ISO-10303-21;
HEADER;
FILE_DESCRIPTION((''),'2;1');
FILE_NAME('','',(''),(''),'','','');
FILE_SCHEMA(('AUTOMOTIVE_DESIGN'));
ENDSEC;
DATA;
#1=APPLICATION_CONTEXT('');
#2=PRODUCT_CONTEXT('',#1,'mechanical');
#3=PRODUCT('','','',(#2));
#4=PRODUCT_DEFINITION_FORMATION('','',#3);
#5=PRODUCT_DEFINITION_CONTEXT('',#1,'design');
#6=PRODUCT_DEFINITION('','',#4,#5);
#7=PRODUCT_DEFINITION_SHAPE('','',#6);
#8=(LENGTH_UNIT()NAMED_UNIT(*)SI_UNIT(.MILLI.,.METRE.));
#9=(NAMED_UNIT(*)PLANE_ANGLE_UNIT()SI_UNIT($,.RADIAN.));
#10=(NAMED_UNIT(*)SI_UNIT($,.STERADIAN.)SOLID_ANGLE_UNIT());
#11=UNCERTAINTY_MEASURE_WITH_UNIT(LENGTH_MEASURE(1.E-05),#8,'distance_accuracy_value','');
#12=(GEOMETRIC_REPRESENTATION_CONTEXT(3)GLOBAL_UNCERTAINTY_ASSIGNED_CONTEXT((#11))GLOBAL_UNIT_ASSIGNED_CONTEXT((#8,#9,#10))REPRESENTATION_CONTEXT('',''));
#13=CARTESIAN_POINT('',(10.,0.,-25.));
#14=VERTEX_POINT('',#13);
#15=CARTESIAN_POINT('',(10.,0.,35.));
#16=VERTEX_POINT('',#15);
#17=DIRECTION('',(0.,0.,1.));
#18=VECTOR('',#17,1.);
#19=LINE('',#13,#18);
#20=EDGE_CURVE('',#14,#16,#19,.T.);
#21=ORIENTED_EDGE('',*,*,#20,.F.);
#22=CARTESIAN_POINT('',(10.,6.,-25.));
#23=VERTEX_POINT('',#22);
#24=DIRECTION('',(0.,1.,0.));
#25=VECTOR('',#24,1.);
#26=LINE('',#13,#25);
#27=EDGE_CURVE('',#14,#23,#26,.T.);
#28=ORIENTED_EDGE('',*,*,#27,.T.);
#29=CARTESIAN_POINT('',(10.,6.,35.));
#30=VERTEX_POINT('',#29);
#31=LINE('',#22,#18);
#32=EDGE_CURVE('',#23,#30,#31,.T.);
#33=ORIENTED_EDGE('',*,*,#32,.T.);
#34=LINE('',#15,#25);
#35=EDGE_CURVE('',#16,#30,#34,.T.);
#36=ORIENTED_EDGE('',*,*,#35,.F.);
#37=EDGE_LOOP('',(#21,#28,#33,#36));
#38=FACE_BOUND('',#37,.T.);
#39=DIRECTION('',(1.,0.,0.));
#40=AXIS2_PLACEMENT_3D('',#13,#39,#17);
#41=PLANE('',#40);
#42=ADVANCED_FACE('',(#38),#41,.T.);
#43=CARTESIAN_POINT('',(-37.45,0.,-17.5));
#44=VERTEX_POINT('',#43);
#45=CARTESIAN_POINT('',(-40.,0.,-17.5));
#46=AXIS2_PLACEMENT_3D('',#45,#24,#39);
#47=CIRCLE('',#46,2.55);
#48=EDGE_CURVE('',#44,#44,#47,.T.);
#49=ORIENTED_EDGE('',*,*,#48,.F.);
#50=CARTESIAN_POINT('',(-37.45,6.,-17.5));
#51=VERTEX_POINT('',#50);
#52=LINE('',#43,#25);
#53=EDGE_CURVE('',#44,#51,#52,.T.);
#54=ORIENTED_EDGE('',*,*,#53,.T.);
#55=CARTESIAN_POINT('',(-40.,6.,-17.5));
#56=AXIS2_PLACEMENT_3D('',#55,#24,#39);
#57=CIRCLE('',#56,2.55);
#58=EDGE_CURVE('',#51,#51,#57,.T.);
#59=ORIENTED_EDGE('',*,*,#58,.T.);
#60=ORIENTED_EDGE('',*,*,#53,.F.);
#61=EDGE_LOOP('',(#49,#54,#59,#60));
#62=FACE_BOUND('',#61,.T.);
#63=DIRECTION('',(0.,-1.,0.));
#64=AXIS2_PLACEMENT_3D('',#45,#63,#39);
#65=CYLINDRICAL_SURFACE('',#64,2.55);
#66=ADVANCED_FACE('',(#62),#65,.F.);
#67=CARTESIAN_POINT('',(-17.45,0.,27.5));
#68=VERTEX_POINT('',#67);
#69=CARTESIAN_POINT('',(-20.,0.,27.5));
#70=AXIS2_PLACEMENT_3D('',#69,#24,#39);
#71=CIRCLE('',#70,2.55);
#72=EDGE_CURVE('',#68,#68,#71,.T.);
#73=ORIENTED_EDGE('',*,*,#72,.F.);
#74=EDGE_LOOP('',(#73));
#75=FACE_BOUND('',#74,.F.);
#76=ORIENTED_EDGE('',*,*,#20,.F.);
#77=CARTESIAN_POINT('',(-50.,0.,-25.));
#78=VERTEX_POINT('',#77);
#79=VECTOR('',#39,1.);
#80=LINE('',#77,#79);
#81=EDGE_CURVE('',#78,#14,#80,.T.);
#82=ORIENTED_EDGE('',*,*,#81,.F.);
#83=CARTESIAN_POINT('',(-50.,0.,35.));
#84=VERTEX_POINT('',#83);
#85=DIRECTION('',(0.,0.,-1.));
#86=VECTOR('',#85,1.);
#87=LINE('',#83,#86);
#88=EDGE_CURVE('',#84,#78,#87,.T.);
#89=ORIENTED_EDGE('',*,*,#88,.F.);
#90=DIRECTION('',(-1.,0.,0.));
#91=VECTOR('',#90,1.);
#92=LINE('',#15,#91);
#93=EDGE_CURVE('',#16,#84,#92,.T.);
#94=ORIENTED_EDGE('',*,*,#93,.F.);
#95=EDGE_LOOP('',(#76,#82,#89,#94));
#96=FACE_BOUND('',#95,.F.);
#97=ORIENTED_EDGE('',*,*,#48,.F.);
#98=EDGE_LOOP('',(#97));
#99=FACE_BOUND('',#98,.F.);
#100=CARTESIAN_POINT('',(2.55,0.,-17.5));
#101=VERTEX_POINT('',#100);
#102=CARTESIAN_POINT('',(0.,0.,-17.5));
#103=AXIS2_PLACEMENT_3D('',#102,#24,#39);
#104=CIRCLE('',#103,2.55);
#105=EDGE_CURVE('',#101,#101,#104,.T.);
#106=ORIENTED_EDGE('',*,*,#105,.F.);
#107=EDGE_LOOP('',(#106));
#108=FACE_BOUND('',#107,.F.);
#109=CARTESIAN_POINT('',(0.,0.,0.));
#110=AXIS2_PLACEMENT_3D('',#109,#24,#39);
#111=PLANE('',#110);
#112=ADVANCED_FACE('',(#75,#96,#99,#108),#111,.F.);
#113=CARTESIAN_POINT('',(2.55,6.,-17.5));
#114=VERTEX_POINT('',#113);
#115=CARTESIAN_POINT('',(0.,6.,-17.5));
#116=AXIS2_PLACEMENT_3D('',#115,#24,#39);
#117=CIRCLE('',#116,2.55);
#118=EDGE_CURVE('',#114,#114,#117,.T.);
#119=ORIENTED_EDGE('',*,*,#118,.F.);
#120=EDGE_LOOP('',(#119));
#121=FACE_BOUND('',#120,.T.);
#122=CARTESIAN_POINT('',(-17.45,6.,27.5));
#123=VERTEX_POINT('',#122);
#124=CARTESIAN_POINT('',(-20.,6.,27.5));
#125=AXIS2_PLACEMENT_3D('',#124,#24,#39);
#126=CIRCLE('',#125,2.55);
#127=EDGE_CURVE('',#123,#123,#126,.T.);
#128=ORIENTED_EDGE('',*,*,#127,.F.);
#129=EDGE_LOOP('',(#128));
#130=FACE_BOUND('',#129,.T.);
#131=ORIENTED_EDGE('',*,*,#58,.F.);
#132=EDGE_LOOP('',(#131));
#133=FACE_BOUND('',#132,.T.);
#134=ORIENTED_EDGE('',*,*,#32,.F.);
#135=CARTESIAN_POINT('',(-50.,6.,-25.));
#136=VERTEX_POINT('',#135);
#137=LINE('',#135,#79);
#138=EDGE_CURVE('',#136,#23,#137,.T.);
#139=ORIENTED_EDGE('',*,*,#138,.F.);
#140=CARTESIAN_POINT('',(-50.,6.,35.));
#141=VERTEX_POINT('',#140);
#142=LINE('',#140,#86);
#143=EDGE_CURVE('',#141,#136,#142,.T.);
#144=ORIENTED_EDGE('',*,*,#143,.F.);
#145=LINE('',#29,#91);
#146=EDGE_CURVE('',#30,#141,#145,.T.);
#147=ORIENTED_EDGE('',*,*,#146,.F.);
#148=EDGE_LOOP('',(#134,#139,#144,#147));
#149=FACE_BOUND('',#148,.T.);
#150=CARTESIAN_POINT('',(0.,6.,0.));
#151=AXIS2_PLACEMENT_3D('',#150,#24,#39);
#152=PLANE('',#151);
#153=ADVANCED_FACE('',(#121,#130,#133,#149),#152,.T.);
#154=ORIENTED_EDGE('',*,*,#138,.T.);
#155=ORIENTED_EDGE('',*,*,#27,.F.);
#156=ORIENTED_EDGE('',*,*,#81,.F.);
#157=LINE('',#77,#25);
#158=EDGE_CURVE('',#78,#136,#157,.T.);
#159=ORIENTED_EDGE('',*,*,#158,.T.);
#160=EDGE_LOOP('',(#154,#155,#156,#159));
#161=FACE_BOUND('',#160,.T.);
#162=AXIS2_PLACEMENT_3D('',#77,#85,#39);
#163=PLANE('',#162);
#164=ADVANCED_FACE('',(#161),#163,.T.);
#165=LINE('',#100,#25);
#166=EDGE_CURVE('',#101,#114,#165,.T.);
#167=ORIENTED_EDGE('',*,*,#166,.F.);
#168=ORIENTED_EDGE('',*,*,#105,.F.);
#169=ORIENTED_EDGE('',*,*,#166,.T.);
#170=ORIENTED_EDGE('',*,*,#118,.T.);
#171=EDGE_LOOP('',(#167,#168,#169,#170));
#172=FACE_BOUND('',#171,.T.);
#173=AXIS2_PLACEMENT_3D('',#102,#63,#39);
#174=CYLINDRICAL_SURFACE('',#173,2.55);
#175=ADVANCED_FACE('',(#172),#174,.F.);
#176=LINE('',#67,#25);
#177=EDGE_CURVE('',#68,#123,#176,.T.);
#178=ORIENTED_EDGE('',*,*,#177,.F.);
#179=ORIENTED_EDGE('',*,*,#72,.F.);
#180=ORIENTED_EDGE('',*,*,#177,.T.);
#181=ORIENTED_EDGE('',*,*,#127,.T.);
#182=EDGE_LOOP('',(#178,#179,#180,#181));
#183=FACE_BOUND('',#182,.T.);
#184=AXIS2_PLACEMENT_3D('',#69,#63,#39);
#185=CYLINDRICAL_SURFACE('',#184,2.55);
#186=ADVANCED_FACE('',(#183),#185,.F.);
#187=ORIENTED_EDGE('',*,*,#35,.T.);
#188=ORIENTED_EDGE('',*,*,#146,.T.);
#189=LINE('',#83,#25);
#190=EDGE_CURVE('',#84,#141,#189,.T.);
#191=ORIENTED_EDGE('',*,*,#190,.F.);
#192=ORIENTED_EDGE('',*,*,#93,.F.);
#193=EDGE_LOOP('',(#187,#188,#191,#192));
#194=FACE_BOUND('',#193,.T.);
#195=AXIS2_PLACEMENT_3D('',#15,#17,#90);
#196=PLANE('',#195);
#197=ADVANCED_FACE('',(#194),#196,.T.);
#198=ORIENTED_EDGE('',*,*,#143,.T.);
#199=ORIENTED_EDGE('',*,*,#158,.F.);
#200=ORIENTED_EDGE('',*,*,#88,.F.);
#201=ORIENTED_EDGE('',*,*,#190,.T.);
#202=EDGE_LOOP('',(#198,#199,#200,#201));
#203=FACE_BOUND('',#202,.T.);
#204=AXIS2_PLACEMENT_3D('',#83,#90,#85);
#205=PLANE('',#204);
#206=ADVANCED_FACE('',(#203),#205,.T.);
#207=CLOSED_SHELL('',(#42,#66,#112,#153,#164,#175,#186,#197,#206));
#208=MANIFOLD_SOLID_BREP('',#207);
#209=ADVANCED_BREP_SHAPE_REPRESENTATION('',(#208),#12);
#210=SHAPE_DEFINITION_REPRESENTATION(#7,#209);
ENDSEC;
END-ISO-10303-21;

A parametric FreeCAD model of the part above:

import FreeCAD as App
import Part
import Sketcher
from FreeCAD import Vector


def add_polygon(sketch, points):
    """Adds a closed chain of lines whose ends are joined by coincident constraints."""
    first, n = sketch.GeometryCount, len(points)
    for a, b in zip(points, points[1:] + points[:1]):
        sketch.addGeometry(Part.LineSegment(App.Vector(*a, 0), App.Vector(*b, 0)), False)
    for i in range(n):
        sketch.addConstraint(Sketcher.Constraint("Coincident", first + i, 2, first + (i + 1) % n, 1))

doc = App.newDocument("Part")
params = doc.addObject("Spreadsheet::Sheet", "Params")
for row, (alias, value) in enumerate([
    ("sketch1_diameter", "5.1 mm"),
    ("sketch1_width", "60 mm"),
    ("pad1_length", "6 mm"),
], start=1):
    params.set(f"A{row}", alias)
    params.set(f"B{row}", "=" + value)
    params.setAlias(f"B{row}", alias)

body = doc.addObject("PartDesign::Body", "Body")

sketch1 = body.newObject("Sketcher::SketchObject", "Sketch")
sketch1.AttachmentSupport = (doc.getObject("XZ_Plane"), [""])
sketch1.MapMode = "FlatFace"
add_polygon(sketch1, [(10, -25), (-50, -25), (-50, 35), (10, 35)])
sketch1.addGeometry(Part.Circle(Vector(-20, 27.5, 0), Vector(0, 0, 1), 2.55), False)
sketch1.addGeometry(Part.Circle(Vector(-40, -17.5, 0), Vector(0, 0, 1), 2.55), False)
sketch1.addGeometry(Part.Circle(Vector(0, -17.5, 0), Vector(0, 0, 1), 2.55), False)
sketch1.addConstraint(Sketcher.Constraint("Horizontal", 0))
sketch1.addConstraint(Sketcher.Constraint("Vertical", 1))
sketch1.addConstraint(Sketcher.Constraint("Horizontal", 2))
sketch1.addConstraint(Sketcher.Constraint("Vertical", 3))
sketch1.addConstraint(Sketcher.Constraint("Equal", 4, 5))
sketch1.addConstraint(Sketcher.Constraint("Equal", 5, 6))
sketch1.addConstraint(Sketcher.Constraint("PointOnObject", 6, 3, -2))
sketch1.addConstraint(Sketcher.Constraint("Horizontal", 5, 3, 6, 3))
sketch1.addConstraint(Sketcher.Constraint("Equal", 2, 1))
sketch1.addConstraint(Sketcher.Constraint("Diameter", 4, 5.1))
sketch1.addConstraint(Sketcher.Constraint("DistanceX", 0, 2, 0, 1, 60.0))
sketch1.addConstraint(Sketcher.Constraint("DistanceX", 4, 3, -1, 1, 20.0))
sketch1.addConstraint(Sketcher.Constraint("DistanceX", 5, 3, -1, 1, 40.0))
sketch1.addConstraint(Sketcher.Constraint("DistanceX", 0, 2, -1, 1, 50.0))
sketch1.addConstraint(Sketcher.Constraint("DistanceY", 0, 2, -1, 1, 25.0))
sketch1.addConstraint(Sketcher.Constraint("DistanceY", 5, 3, 4, 3, 45.0))
sketch1.addConstraint(Sketcher.Constraint("DistanceY", -1, 1, 4, 3, 27.5))
sketch1.setExpression("Constraints[13]", "Params.sketch1_diameter")
sketch1.setExpression("Constraints[14]", "Params.sketch1_width")
pad1 = body.newObject("PartDesign::Pad", "Pad")
pad1.Profile = sketch1
pad1.setExpression("Length", "Params.pad1_length")
pad1.Reversed = True

doc.recompute()
